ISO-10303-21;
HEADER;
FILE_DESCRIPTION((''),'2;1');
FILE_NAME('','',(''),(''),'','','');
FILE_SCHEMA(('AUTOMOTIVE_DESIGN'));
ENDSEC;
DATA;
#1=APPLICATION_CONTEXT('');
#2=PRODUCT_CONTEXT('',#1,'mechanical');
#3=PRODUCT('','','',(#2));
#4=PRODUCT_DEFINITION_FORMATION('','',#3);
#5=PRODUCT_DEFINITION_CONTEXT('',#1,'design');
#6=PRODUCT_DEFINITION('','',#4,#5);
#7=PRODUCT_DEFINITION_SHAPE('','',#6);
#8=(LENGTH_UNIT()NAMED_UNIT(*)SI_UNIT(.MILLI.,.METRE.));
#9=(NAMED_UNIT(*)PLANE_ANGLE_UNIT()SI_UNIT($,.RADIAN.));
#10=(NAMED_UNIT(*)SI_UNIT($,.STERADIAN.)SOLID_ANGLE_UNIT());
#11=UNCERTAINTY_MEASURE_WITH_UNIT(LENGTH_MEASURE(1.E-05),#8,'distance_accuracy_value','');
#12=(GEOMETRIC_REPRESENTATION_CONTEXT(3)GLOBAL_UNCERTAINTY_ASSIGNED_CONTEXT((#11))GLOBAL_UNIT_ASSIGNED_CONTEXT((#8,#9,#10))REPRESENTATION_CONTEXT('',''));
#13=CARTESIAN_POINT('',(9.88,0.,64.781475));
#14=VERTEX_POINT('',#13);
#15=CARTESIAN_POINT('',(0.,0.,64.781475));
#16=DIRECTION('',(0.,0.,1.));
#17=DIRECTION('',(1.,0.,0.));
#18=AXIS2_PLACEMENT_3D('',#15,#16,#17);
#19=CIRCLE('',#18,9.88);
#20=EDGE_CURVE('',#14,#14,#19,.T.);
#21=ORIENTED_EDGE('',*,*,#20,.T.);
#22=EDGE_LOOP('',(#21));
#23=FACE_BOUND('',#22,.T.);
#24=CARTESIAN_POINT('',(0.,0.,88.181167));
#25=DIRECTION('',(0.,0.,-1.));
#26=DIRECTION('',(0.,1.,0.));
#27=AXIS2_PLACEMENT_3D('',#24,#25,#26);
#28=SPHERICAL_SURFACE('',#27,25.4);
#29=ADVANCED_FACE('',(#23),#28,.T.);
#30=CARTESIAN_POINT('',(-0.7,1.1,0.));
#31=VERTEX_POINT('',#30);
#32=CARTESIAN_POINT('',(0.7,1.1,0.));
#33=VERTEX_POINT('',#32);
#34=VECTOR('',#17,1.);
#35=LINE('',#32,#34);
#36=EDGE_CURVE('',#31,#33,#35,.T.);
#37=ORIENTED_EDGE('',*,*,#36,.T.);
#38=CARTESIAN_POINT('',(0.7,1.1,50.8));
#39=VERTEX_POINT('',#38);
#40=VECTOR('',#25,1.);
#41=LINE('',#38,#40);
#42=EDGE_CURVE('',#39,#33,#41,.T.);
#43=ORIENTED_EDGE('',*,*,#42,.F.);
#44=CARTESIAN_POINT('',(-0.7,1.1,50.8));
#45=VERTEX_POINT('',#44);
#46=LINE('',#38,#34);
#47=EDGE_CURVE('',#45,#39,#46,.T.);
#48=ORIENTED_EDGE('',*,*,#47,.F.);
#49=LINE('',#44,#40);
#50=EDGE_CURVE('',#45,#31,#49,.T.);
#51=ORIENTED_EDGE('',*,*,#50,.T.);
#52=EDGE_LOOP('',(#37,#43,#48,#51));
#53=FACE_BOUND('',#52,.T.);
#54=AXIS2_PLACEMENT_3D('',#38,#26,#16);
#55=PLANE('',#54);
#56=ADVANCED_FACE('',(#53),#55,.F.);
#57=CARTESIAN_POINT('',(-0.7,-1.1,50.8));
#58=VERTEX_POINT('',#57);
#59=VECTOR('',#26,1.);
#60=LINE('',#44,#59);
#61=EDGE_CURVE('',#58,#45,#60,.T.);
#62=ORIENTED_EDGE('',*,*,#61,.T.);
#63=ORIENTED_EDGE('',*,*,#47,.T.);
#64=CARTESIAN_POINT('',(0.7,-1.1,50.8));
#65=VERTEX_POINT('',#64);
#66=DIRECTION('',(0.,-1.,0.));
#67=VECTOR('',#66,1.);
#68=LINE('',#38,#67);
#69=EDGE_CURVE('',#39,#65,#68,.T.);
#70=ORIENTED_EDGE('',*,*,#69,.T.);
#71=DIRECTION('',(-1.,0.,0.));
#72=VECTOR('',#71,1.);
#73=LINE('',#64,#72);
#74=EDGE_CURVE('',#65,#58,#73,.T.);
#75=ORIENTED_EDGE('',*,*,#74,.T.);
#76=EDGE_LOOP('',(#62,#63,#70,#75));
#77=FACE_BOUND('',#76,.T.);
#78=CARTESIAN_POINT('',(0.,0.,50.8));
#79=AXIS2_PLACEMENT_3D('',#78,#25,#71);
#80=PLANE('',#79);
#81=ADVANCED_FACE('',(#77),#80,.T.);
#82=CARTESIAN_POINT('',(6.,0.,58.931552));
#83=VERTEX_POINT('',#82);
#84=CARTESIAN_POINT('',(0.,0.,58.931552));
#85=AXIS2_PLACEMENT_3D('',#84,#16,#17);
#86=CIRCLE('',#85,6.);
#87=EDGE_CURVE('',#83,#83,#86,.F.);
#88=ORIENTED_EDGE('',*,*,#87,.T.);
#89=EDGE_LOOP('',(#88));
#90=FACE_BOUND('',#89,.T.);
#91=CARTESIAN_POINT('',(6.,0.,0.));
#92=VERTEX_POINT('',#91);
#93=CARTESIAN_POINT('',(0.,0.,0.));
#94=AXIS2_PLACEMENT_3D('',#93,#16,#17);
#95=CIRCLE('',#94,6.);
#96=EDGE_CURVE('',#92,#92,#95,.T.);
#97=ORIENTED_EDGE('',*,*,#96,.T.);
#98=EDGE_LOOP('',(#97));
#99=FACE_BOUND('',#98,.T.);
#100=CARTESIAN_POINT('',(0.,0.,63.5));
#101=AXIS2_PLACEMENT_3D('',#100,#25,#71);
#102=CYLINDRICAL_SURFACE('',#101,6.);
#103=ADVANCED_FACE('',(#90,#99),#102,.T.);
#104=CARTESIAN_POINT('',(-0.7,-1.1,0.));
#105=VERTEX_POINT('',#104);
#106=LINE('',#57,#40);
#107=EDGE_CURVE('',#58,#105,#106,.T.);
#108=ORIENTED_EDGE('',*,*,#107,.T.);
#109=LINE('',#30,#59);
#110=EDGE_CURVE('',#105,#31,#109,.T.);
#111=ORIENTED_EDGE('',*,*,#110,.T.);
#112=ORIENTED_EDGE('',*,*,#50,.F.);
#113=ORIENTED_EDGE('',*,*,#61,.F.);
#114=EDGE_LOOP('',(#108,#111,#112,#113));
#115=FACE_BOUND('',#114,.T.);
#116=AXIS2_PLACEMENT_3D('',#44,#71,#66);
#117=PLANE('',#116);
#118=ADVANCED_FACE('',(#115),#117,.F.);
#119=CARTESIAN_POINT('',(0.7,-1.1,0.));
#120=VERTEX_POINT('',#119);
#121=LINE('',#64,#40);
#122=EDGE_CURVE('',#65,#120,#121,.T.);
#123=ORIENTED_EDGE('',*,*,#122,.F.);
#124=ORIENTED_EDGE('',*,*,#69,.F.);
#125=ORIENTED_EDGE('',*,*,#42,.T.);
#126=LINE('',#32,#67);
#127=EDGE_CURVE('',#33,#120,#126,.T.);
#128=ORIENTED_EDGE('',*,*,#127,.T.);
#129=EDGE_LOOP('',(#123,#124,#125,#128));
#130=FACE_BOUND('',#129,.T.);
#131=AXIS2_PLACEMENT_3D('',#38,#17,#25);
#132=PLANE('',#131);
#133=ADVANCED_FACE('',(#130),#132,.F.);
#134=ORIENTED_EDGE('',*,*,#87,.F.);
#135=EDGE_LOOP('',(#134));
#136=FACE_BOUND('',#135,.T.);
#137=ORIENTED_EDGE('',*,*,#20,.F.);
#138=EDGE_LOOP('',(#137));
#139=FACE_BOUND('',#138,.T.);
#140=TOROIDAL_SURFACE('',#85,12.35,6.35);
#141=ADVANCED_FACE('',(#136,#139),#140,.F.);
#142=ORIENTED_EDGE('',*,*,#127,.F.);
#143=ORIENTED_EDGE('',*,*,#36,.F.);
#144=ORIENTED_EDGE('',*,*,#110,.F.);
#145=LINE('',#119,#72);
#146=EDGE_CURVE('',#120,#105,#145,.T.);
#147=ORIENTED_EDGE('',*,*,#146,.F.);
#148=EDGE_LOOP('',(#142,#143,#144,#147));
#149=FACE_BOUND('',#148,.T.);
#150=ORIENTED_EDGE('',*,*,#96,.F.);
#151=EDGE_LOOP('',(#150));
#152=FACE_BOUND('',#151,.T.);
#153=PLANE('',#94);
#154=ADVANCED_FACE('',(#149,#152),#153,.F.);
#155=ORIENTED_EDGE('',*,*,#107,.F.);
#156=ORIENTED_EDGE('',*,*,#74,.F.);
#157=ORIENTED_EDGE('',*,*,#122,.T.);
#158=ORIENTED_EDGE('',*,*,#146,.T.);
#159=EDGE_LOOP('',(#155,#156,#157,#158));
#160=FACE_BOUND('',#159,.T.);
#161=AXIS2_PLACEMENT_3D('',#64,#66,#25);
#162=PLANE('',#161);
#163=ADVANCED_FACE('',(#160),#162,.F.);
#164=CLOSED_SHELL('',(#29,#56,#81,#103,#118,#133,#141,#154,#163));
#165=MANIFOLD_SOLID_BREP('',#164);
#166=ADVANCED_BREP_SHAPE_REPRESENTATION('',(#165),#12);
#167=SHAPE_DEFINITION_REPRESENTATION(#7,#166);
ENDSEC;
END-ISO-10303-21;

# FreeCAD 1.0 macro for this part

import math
import FreeCAD as App
import Part
import Sketcher

V = App.Vector


def edges_at(feature, points):
    """Names of the edges that pass closest to the given points."""
    edges = feature.Shape.Edges
    near = lambda p: min(range(len(edges)), key=lambda i: edges[i].distToShape(Part.Vertex(*p))[0])
    return sorted({f"Edge{near(p) + 1}" for p in points})

doc = App.newDocument("Part")
body = doc.addObject("PartDesign::Body", "Body")

# Sketch on XY plane
sketch1 = body.newObject("Sketcher::SketchObject", "Sketch")
sketch1.AttachmentSupport = (doc.getObject("XY_Plane"), [""])
sketch1.MapMode = "FlatFace"
sketch1.addGeometry(Part.Circle(V(0, 0, 0), V(0, 0, 1), 6), False)
sketch1.addConstraint(Sketcher.Constraint("Coincident", 0, 3, -1, 1))
sketch1.addConstraint(Sketcher.Constraint("Diameter", 0, 12.0))
pad1 = body.newObject("PartDesign::Pad", "Pad")
pad1.Profile = sketch1
pad1.Length = 63.5

# Sketch on YZ plane
sketch2 = body.newObject("Sketcher::SketchObject", "Sketch001")
sketch2.AttachmentSupport = (doc.getObject("YZ_Plane"), [""])
sketch2.MapMode = "FlatFace"
sketch2.addGeometry(Part.LineSegment(V(0, 114, 0), V(0, 64, 0)), False)
sketch2.addGeometry(Part.LineSegment(V(0, 64, 0), V(6, 64, 0)), False)
sketch2.addGeometry(Part.ArcOfCircle(Part.Circle(V(0, 88, 0), V(0, 0, 1), 25), math.radians(-76), math.radians(90)), False)
sketch2.addConstraint(Sketcher.Constraint("Coincident", 0, 2, 1, 1))
sketch2.addConstraint(Sketcher.Constraint("Coincident", 1, 2, 2, 1))
sketch2.addConstraint(Sketcher.Constraint("Coincident", 2, 2, 0, 1))
sketch2.addConstraint(Sketcher.Constraint("Vertical", 0))
sketch2.addConstraint(Sketcher.Constraint("Horizontal", 1))
sketch2.addConstraint(Sketcher.Constraint("PointOnObject", 2, 3, -2))
sketch2.addConstraint(Sketcher.Constraint("PointOnObject", 0, 2, -2))
sketch2.addConstraint(Sketcher.Constraint("Radius", 2, 25.4))
sketch2.addConstraint(Sketcher.Constraint("DistanceX", 1, 1, 1, 2, 6.0))
sketch2.addConstraint(Sketcher.Constraint("DistanceY", -1, 1, 0, 2, 63.5))
revolution = body.newObject("PartDesign::Revolution", "Revolution")
revolution.Profile = sketch2
revolution.ReferenceAxis = (sketch2, ["V_Axis"])
revolution.Angle = 360

# Sketch on XY plane
sketch3 = body.newObject("Sketcher::SketchObject", "Sketch002")
sketch3.AttachmentSupport = (doc.getObject("XY_Plane"), [""])
sketch3.MapMode = "FlatFace"
sketch3.addGeometry(Part.LineSegment(V(0.7, 1.1, 0), V(0.7, -1.1, 0)), False)
sketch3.addGeometry(Part.LineSegment(V(0.7, -1.1, 0), V(-0.7, -1.1, 0)), False)
sketch3.addGeometry(Part.LineSegment(V(-0.7, -1.1, 0), V(-0.7, 1.1, 0)), False)
sketch3.addGeometry(Part.LineSegment(V(-0.7, 1.1, 0), V(0.7, 1.1, 0)), False)
sketch3.addConstraint(Sketcher.Constraint("Coincident", 0, 2, 1, 1))
sketch3.addConstraint(Sketcher.Constraint("Coincident", 1, 2, 2, 1))
sketch3.addConstraint(Sketcher.Constraint("Coincident", 2, 2, 3, 1))
sketch3.addConstraint(Sketcher.Constraint("Coincident", 3, 2, 0, 1))
sketch3.addConstraint(Sketcher.Constraint("Vertical", 0))
sketch3.addConstraint(Sketcher.Constraint("Horizontal", 1))
sketch3.addConstraint(Sketcher.Constraint("Vertical", 2))
sketch3.addConstraint(Sketcher.Constraint("Horizontal", 3))
sketch3.addConstraint(Sketcher.Constraint("Symmetric", 0, 2, 2, 2, -1, 1))
sketch3.addConstraint(Sketcher.Constraint("DistanceX", 1, 2, 1, 1, 1.4))
sketch3.addConstraint(Sketcher.Constraint("DistanceY", 0, 2, 0, 1, 2.2))
pocket1 = body.newObject("PartDesign::Pocket", "Pocket")
pocket1.Profile = sketch3
pocket1.Length = 50.8
pocket1.Reversed = True
doc.recompute()

fillet = body.newObject("PartDesign::Fillet", "Fillet")
fillet.Base = (pocket1, edges_at(pocket1, [(-4.243, -4.243, 63.5)]))
fillet.Radius = 6.35

doc.recompute()
